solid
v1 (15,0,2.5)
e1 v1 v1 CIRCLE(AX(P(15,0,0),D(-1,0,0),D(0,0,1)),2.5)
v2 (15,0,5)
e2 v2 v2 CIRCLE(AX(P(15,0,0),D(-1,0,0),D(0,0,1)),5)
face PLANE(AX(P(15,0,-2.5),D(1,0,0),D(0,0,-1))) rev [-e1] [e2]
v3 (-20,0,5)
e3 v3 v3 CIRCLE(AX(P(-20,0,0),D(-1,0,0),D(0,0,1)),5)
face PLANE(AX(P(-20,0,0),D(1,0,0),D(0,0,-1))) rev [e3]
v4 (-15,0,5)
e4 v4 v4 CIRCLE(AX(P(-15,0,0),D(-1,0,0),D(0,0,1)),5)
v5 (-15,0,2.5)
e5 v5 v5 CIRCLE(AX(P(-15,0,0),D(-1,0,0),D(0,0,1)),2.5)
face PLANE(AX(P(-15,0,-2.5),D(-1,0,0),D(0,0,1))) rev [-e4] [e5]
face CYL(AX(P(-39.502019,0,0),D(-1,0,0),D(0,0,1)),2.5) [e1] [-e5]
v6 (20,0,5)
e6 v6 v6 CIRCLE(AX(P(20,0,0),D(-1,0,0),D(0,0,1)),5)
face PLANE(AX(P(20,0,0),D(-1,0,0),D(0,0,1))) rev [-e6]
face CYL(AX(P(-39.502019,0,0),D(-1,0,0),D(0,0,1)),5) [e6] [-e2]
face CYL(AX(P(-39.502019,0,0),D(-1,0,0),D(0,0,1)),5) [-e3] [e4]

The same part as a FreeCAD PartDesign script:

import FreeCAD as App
import Part
import Sketcher
Q = App.Units.Quantity

doc = App.newDocument("Part")
body = doc.addObject("PartDesign::Body", "Body")

sketch1 = body.newObject("Sketcher::SketchObject", "Sketch")
sketch1.AttachmentSupport = (doc.getObject("XZ_Plane"), [""])
sketch1.MapMode = "FlatFace"
sketch1.addGeometry([
    Part.LineSegment(App.Vector(15, -5, 0), App.Vector(15, -2.5, 0)),
    Part.LineSegment(App.Vector(15, -2.5, 0), App.Vector(-15, -2.5, 0)),
    Part.LineSegment(App.Vector(-15, -2.5, 0), App.Vector(-15, -5, 0)),
    Part.LineSegment(App.Vector(-15, -5, 0), App.Vector(-20, -5, 0)),
    Part.LineSegment(App.Vector(-20, -5, 0), App.Vector(-20, 0, 0)),
    Part.LineSegment(App.Vector(-20, 0, 0), App.Vector(20, 0, 0)),
    Part.LineSegment(App.Vector(20, 0, 0), App.Vector(20, -5, 0)),
    Part.LineSegment(App.Vector(20, -5, 0), App.Vector(15, -5, 0)),
], False)
sketch1.addConstraint([
    Sketcher.Constraint("Coincident", 0, 2, 1, 1),
    Sketcher.Constraint("Coincident", 1, 2, 2, 1),
    Sketcher.Constraint("Coincident", 2, 2, 3, 1),
    Sketcher.Constraint("Coincident", 3, 2, 4, 1),
    Sketcher.Constraint("Coincident", 4, 2, 5, 1),
    Sketcher.Constraint("Coincident", 5, 2, 6, 1),
    Sketcher.Constraint("Coincident", 6, 2, 7, 1),
    Sketcher.Constraint("Coincident", 7, 2, 0, 1),
    Sketcher.Constraint("Vertical", 0),
    Sketcher.Constraint("Horizontal", 1),
    Sketcher.Constraint("Vertical", 2),
    Sketcher.Constraint("Horizontal", 3),
    Sketcher.Constraint("Vertical", 4),
    Sketcher.Constraint("Horizontal", 5),
    Sketcher.Constraint("Vertical", 6),
    Sketcher.Constraint("Horizontal", 7),
    Sketcher.Constraint("Symmetric", 4, 2, 5, 2, -1, 1),
    Sketcher.Constraint("Symmetric", 2, 2, 7, 2, -2),
    Sketcher.Constraint("Equal", 7, 4),
    Sketcher.Constraint("DistanceX", 1, 2, 1, 1, Q("30 mm")),
    Sketcher.Constraint("DistanceX", 3, 2, 3, 1, Q("5 mm")),
    Sketcher.Constraint("DistanceY", 0, 1, 0, 2, Q("2.5 mm")),
])
revolution = body.newObject("PartDesign::Revolution", "Revolution")
revolution.Profile = sketch1
revolution.ReferenceAxis = (sketch1, ["H_Axis"])
revolution.Angle = 360

doc.recompute()
